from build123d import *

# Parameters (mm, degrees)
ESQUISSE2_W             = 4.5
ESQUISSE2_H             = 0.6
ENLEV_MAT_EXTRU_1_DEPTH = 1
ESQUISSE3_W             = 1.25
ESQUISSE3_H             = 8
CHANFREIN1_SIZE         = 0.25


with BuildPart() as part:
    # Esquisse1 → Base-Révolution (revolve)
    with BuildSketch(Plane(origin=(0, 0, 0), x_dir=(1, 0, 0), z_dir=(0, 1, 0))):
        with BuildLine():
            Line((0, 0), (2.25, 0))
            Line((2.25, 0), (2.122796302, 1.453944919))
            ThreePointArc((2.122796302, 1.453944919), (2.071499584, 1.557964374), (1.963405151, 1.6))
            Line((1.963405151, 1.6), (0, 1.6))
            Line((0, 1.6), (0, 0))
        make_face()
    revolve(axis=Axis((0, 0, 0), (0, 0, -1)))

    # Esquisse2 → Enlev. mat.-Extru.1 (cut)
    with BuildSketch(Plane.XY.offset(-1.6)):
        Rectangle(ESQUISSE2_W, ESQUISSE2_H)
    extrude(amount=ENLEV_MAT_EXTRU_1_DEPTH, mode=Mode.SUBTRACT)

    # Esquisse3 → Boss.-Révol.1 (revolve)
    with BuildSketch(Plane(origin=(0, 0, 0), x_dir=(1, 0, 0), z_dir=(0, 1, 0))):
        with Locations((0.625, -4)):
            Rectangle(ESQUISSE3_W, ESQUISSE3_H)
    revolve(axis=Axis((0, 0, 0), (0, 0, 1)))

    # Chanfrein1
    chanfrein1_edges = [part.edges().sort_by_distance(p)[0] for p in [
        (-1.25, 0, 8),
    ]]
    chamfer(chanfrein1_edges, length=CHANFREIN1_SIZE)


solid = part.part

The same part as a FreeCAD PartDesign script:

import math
import FreeCAD as App
import Part
import Sketcher
from FreeCAD import Vector
Q = App.Units.Quantity


def edges_at(feature, points):
    """Names of the edges that pass closest to the given points."""
    edges = feature.Shape.Edges
    near = lambda p: min(range(len(edges)), key=lambda i: edges[i].distToShape(Part.Vertex(*p))[0])
    return sorted({f"Edge{near(p) + 1}" for p in points})

doc = App.newDocument("Part")
body = doc.addObject("PartDesign::Body", "Body")

# Sketch on XZ plane
sketch1 = body.newObject("Sketcher::SketchObject", "Sketch")
sketch1.AttachmentSupport = (doc.getObject("XZ_Plane"), [""])
sketch1.MapMode = "FlatFace"
sketch1.addGeometry([
    Part.LineSegment(Vector(0, 0, 0), Vector(2.25, 0, 0)),  # 0
    Part.LineSegment(Vector(2.25, 0, 0), Vector(2.122796, -1.453945, 0)),  # 1
    Part.ArcOfCircle(Part.Circle(Vector(1.963405, -1.44, 0), Vector(0, 0, 1), 0.16), math.radians(-90), math.radians(-5)),  # 2
    Part.LineSegment(Vector(1.963405, -1.6, 0), Vector(0, -1.6, 0)),  # 3
    Part.LineSegment(Vector(0, -1.6, 0), Vector(0, 0, 0)),  # 4
], False)
sketch1.addConstraint([
    Sketcher.Constraint("Coincident", 0, 2, 1, 1),
    Sketcher.Constraint("Tangent", 1, 2, 2, 2),
    Sketcher.Constraint("Tangent", 2, 1, 3, 1),
    Sketcher.Constraint("Coincident", 3, 2, 4, 1),
    Sketcher.Constraint("Coincident", 4, 2, 0, 1),
    Sketcher.Constraint("Horizontal", 0),
    Sketcher.Constraint("Horizontal", 3),
    Sketcher.Constraint("Vertical", 4),
    Sketcher.Constraint("Coincident", 4, 2, -1, 1),
    Sketcher.Constraint("Angle", 1, Q("-95 deg")),
    Sketcher.Constraint("Radius", 2, 0.16),
    Sketcher.Constraint("DistanceY", 4, 1, 4, 2, 1.6),
    Sketcher.Constraint("DistanceX", 0, 1, 0, 2, 2.25),
])
revolution = body.newObject("PartDesign::Revolution", "Revolution")
revolution.Profile = sketch1
revolution.ReferenceAxis = (sketch1, ["V_Axis"])
revolution.Angle = 360

# Sketch on XY plane
sketch2 = body.newObject("Sketcher::SketchObject", "Sketch001")
sketch2.AttachmentSupport = (doc.getObject("XY_Plane"), [""])
sketch2.MapMode = "FlatFace"
sketch2.AttachmentOffset = App.Placement(Vector(0, 0, -1.6), App.Rotation())
sketch2.addGeometry([
    Part.LineSegment(Vector(-2.25, 0.3, 0), Vector(-2.25, -0.3, 0)),
    Part.LineSegment(Vector(-2.25, -0.3, 0), Vector(2.25, -0.3, 0)),
    Part.LineSegment(Vector(2.25, -0.3, 0), Vector(2.25, 0.3, 0)),
    Part.LineSegment(Vector(2.25, 0.3, 0), Vector(-2.25, 0.3, 0)),
], False)
sketch2.addConstraint([
    Sketcher.Constraint("Coincident", 0, 2, 1, 1),
    Sketcher.Constraint("Coincident", 1, 2, 2, 1),
    Sketcher.Constraint("Coincident", 2, 2, 3, 1),
    Sketcher.Constraint("Coincident", 3, 2, 0, 1),
    Sketcher.Constraint("Vertical", 0),
    Sketcher.Constraint("Horizontal", 1),
    Sketcher.Constraint("Vertical", 2),
    Sketcher.Constraint("Horizontal", 3),
    Sketcher.Constraint("Symmetric", 0, 2, 2, 2, -1, 1),
    Sketcher.Constraint("DistanceX", 1, 1, 1, 2, 4.5),
    Sketcher.Constraint("DistanceY", 0, 2, 0, 1, 0.6),
])
pocket1 = body.newObject("PartDesign::Pocket", "Pocket")
pocket1.Profile = sketch2
pocket1.Length = 1
pocket1.Reversed = True

# Sketch on XZ plane
sketch3 = body.newObject("Sketcher::SketchObject", "Sketch002")
sketch3.AttachmentSupport = (doc.getObject("XZ_Plane"), [""])
sketch3.MapMode = "FlatFace"
sketch3.addGeometry([
    Part.LineSegment(Vector(0, 0, 0), Vector(0, 8, 0)),
    Part.LineSegment(Vector(0, 8, 0), Vector(1.25, 8, 0)),
    Part.LineSegment(Vector(1.25, 8, 0), Vector(1.25, 0, 0)),
    Part.LineSegment(Vector(1.25, 0, 0), Vector(0, 0, 0)),
], False)
sketch3.addConstraint([
    Sketcher.Constraint("Coincident", 0, 2, 1, 1),
    Sketcher.Constraint("Coincident", 1, 2, 2, 1),
    Sketcher.Constraint("Coincident", 2, 2, 3, 1),
    Sketcher.Constraint("Coincident", 3, 2, 0, 1),
    Sketcher.Constraint("Vertical", 0),
    Sketcher.Constraint("Horizontal", 1),
    Sketcher.Constraint("Vertical", 2),
    Sketcher.Constraint("Horizontal", 3),
    Sketcher.Constraint("Coincident", 3, 2, -1, 1),
    Sketcher.Constraint("DistanceY", 0, 1, 0, 2, 8.0),
    Sketcher.Constraint("DistanceX", 1, 1, 1, 2, 1.25),
])
revolution2 = body.newObject("PartDesign::Revolution", "Revolution001")
revolution2.Profile = sketch3
revolution2.ReferenceAxis = (sketch3, ["V_Axis"])
revolution2.Angle = 360
doc.recompute()

chamfer = body.newObject("PartDesign::Chamfer", "Chamfer")
chamfer.Base = (revolution2, edges_at(revolution2, [(-1.25, 0, 8)]))
chamfer.Size = 0.25

doc.recompute()
